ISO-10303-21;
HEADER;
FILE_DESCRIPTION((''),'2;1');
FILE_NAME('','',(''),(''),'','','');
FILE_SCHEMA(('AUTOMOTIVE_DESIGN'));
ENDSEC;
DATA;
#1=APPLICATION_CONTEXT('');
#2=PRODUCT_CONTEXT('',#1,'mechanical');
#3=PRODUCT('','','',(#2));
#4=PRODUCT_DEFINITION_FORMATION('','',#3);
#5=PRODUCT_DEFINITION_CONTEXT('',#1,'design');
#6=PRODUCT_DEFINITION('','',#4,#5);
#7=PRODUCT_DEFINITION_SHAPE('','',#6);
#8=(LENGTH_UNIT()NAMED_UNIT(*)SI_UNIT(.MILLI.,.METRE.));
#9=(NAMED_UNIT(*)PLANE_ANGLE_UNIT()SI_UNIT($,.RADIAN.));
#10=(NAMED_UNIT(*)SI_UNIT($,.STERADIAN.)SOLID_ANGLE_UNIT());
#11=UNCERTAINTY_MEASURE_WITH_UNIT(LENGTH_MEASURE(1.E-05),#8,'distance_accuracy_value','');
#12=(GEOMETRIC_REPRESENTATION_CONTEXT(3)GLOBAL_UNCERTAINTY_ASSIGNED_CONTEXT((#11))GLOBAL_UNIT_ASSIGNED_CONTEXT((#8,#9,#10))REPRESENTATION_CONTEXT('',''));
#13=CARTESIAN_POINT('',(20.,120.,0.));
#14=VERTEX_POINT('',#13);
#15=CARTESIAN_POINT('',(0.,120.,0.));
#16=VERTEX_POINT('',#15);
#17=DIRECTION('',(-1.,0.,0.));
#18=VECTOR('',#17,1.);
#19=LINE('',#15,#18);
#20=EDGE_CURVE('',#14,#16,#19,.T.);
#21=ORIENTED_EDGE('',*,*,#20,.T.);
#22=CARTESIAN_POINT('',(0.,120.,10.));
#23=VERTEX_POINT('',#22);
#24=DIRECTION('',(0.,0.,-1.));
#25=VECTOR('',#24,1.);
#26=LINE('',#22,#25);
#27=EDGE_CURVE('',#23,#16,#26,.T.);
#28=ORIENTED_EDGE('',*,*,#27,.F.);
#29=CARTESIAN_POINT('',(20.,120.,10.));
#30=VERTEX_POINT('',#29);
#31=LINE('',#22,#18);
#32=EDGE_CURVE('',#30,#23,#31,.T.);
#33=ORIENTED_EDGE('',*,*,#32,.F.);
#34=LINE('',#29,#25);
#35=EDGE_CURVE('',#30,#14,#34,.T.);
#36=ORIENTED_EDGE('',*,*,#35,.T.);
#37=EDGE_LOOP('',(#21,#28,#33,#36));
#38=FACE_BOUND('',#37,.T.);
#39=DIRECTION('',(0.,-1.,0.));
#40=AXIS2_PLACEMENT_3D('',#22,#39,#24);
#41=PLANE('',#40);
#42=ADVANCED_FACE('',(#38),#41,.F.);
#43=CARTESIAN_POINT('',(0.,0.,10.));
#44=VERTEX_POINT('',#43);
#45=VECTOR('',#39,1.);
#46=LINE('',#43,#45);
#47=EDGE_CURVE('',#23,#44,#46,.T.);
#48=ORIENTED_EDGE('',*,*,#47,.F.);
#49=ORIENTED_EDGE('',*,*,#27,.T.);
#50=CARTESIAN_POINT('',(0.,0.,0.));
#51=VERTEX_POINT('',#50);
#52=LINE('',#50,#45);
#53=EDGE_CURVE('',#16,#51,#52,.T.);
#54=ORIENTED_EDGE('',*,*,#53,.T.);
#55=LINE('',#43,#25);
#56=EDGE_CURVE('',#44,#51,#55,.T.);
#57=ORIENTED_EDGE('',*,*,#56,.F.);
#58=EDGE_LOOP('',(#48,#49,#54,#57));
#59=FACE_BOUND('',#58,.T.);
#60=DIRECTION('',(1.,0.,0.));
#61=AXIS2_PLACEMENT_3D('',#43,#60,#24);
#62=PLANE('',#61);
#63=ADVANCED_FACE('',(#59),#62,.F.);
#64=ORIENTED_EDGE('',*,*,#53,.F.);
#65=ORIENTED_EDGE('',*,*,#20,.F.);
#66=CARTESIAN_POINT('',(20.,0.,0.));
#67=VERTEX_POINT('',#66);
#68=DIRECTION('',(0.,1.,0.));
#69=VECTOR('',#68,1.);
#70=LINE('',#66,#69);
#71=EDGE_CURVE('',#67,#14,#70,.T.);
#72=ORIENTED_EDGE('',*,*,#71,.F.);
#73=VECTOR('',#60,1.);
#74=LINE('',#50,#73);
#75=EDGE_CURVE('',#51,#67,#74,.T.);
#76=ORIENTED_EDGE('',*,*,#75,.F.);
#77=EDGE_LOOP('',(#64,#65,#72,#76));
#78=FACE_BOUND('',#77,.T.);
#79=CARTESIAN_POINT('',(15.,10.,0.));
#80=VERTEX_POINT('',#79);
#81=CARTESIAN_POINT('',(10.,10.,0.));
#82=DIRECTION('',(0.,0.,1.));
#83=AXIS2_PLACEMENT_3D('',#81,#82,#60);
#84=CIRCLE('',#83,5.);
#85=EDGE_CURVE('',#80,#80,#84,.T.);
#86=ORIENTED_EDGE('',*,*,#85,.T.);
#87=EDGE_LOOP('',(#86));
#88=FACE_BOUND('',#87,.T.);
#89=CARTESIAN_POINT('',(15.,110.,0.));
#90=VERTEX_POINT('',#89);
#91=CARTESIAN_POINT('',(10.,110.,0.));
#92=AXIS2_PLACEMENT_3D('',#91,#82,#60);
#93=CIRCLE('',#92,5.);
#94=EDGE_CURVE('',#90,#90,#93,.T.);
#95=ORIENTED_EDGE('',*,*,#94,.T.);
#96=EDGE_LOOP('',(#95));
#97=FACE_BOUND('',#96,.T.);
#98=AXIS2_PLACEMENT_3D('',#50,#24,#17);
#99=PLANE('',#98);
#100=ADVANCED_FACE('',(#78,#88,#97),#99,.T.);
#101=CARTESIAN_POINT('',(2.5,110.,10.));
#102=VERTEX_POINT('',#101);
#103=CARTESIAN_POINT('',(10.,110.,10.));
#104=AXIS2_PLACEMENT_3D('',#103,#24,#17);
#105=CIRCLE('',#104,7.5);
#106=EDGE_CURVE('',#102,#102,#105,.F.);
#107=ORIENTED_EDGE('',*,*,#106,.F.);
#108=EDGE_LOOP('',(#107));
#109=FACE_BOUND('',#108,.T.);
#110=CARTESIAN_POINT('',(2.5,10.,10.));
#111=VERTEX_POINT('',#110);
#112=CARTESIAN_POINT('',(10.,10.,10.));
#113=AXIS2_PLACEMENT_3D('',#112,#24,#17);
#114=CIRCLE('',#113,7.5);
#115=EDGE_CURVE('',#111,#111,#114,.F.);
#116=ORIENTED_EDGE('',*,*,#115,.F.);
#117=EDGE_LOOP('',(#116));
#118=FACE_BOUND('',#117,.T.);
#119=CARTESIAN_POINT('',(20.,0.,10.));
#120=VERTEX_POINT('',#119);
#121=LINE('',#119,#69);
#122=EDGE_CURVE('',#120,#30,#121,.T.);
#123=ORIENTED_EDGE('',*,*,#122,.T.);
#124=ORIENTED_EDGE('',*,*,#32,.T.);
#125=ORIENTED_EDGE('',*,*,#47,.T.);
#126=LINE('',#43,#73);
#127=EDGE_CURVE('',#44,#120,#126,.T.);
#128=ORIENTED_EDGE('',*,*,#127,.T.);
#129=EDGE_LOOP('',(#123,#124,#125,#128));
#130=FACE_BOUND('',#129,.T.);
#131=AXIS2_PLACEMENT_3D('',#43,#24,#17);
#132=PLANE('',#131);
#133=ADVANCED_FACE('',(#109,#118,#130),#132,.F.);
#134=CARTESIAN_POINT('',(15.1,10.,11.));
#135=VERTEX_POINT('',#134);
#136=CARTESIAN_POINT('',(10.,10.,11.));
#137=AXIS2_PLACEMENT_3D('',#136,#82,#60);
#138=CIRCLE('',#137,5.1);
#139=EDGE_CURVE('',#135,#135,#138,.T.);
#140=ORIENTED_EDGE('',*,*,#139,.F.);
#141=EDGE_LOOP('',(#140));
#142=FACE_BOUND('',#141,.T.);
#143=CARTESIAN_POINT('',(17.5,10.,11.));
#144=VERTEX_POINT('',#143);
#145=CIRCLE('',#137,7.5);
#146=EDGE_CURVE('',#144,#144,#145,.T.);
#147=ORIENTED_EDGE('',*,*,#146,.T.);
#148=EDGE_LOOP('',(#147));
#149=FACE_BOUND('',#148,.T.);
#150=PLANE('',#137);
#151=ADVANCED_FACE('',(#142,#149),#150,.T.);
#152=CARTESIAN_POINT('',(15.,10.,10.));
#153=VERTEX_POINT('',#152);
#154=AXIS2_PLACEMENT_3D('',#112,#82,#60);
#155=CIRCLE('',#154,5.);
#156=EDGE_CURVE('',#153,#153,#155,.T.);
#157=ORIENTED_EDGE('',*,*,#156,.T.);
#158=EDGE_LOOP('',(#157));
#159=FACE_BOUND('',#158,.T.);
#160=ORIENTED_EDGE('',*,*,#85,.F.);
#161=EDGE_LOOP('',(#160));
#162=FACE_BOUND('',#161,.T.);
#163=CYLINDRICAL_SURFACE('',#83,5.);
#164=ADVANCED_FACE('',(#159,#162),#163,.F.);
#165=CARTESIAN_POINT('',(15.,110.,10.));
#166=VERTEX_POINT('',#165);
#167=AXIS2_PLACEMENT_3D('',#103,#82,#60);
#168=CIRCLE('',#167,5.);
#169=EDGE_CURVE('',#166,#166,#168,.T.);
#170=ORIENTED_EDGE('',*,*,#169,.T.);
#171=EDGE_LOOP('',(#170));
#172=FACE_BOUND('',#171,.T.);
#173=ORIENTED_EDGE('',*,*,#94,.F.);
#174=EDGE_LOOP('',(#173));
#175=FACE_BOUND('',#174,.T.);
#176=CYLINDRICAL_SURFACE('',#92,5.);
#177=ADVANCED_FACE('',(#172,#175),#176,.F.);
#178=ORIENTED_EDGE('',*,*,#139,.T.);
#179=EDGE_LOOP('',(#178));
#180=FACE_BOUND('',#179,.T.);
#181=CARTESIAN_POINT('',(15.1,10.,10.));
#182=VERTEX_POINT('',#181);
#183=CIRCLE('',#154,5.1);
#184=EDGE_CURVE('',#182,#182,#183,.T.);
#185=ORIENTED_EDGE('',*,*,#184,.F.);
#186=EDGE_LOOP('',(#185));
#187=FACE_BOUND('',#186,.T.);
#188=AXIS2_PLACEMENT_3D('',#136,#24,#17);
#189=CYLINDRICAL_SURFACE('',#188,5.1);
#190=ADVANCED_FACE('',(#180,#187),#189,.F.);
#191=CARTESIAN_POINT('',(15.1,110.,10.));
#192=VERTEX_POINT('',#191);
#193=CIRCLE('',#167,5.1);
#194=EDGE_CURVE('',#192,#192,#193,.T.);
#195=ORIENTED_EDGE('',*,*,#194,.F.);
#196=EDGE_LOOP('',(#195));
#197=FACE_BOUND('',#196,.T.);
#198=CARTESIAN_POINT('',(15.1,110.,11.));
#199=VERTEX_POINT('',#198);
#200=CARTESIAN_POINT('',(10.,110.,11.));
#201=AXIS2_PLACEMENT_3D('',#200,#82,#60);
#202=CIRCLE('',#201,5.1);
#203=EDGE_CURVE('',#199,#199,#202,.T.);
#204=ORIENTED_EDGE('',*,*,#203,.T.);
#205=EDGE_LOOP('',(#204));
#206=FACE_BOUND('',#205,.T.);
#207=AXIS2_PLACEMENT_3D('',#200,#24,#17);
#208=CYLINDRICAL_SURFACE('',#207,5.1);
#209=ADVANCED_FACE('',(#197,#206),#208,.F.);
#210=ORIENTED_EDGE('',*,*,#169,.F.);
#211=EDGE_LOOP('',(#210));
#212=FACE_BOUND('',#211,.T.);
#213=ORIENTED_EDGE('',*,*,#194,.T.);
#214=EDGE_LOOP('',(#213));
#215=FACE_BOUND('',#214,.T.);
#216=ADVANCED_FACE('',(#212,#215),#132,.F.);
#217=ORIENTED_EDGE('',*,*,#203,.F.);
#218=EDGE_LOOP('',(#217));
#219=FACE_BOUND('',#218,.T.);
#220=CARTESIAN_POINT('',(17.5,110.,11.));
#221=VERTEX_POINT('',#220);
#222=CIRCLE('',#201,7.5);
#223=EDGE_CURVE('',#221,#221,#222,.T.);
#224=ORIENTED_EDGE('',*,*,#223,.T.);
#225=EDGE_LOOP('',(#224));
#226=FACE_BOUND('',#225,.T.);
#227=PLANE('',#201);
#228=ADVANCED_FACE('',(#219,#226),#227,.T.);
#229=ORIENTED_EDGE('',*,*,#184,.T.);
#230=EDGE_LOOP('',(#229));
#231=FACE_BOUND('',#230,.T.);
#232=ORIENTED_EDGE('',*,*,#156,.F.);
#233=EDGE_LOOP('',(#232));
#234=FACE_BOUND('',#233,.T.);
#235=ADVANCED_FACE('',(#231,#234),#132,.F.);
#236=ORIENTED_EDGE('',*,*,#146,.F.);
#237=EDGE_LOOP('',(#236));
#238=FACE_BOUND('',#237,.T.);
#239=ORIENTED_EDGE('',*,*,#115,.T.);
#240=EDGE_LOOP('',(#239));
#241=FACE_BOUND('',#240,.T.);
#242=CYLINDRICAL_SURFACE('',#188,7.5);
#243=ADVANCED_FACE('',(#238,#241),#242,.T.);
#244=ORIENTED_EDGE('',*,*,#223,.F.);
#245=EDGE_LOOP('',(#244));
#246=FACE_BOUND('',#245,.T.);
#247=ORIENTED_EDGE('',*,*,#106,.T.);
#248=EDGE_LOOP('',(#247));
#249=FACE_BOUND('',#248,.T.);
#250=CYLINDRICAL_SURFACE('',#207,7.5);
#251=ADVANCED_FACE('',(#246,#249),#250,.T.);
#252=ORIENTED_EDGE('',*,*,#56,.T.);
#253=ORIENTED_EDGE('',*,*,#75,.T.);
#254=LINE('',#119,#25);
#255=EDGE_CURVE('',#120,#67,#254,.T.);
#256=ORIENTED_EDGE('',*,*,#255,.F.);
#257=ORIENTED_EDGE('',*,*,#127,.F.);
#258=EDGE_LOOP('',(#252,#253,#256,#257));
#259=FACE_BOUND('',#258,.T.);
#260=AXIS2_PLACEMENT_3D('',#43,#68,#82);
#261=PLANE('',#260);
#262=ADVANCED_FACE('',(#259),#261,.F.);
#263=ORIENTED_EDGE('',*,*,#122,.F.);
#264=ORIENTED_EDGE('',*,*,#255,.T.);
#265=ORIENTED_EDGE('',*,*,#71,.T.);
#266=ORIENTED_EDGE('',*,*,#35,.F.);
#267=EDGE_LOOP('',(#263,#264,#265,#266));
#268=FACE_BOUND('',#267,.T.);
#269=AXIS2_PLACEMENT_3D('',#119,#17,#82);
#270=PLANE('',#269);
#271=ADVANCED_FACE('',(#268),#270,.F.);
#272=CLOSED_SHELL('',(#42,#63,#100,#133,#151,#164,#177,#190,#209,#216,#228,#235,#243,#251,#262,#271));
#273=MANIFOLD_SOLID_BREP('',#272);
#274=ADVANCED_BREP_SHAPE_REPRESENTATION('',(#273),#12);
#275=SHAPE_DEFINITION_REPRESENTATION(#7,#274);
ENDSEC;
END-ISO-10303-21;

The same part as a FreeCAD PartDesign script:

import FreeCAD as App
import Part
import Sketcher
from FreeCAD import Vector
Q = App.Units.Quantity

doc = App.newDocument("Part")
params = doc.addObject("Spreadsheet::Sheet", "Params")
for row, (alias, value) in enumerate([
    ("sketch1_width", "20 mm"),
    ("sketch1_height", "120 mm"),
    ("pad1_length", "10 mm"),
    ("sketch2_diameter", "15 mm"),
    ("sketch2_diameter2", "10.2 mm"),
    ("pad2_length", "1 mm"),
    ("sketch3_diameter", "10 mm"),
    ("pocket1_length", "10 mm"),
], start=1):
    params.set(f"A{row}", alias)
    params.set(f"B{row}", "=" + value)
    params.setAlias(f"B{row}", alias)

body = doc.addObject("PartDesign::Body", "Body")

sketch1 = doc.addObject("Sketcher::SketchObject", "Sketch")
body.addObject(sketch1)
sketch1.AttachmentSupport = (doc.XY_Plane, [""])
sketch1.MapMode = "FlatFace"
sketch1.addGeometry([
    Part.LineSegment(Vector(0, 120, 0), Vector(0, 0, 0)),
    Part.LineSegment(Vector(0, 0, 0), Vector(20, 0, 0)),
    Part.LineSegment(Vector(20, 0, 0), Vector(20, 120, 0)),
    Part.LineSegment(Vector(20, 120, 0), Vector(0, 120, 0)),
], False)
sketch1.addConstraint([
    Sketcher.Constraint("Coincident", 0, 2, 1, 1),
    Sketcher.Constraint("Coincident", 1, 2, 2, 1),
    Sketcher.Constraint("Coincident", 2, 2, 3, 1),
    Sketcher.Constraint("Coincident", 3, 2, 0, 1),
    Sketcher.Constraint("Vertical", 0),
    Sketcher.Constraint("Horizontal", 1),
    Sketcher.Constraint("Vertical", 2),
    Sketcher.Constraint("Horizontal", 3),
    Sketcher.Constraint("Coincident", 0, 2, -1, 1),
    Sketcher.Constraint("DistanceX", 1, 1, 1, 2, Q("20 mm")),
    Sketcher.Constraint("DistanceY", 0, 2, 0, 1, Q("120 mm")),
])
sketch1.setExpression("Constraints[9]", "Params.sketch1_width")
sketch1.setExpression("Constraints[10]", "Params.sketch1_height")
pad1 = doc.addObject("PartDesign::Pad", "Pad")
body.addObject(pad1)
pad1.Profile = sketch1
pad1.setExpression("Length", "Params.pad1_length")

sketch2 = doc.addObject("Sketcher::SketchObject", "Sketch001")
body.addObject(sketch2)
sketch2.AttachmentSupport = (doc.XY_Plane, [""])
sketch2.MapMode = "FlatFace"
sketch2.AttachmentOffset = App.Placement(Vector(0, 0, 10), App.Rotation())
sketch2.addGeometry([
    Part.Circle(Vector(10, 110, 0), Vector(0, 0, 1), 7.5),
    Part.Circle(Vector(10, 110, 0), Vector(0, 0, 1), 5.1),
    Part.Circle(Vector(10, 10, 0), Vector(0, 0, 1), 7.5),
    Part.Circle(Vector(10, 10, 0), Vector(0, 0, 1), 5.1),
], False)
sketch2.addConstraint([
    Sketcher.Constraint("Coincident", 1, 3, 0, 3),
    Sketcher.Constraint("Coincident", 3, 3, 2, 3),
    Sketcher.Constraint("Equal", 0, 2),
    Sketcher.Constraint("Equal", 1, 3),
    Sketcher.Constraint("Vertical", 1, 3, 2, 3),
    Sketcher.Constraint("Diameter", 0, Q("15 mm")),
    Sketcher.Constraint("Diameter", 1, Q("10.2 mm")),
    Sketcher.Constraint("DistanceX", -1, 1, 0, 3, Q("10 mm")),
    Sketcher.Constraint("DistanceY", -1, 1, 0, 3, Q("110 mm")),
    Sketcher.Constraint("DistanceY", -1, 1, 2, 3, Q("10 mm")),
])
sketch2.setExpression("Constraints[5]", "Params.sketch2_diameter")
sketch2.setExpression("Constraints[6]", "Params.sketch2_diameter2")
pad2 = doc.addObject("PartDesign::Pad", "Pad001")
body.addObject(pad2)
pad2.Profile = sketch2
pad2.setExpression("Length", "Params.pad2_length")

sketch3 = doc.addObject("Sketcher::SketchObject", "Sketch002")
body.addObject(sketch3)
sketch3.AttachmentSupport = (doc.XY_Plane, [""])
sketch3.MapMode = "FlatFace"
sketch3.AttachmentOffset = App.Placement(Vector(0, 0, 10), App.Rotation())
sketch3.addGeometry([
    Part.Circle(Vector(10, 110, 0), Vector(0, 0, 1), 5),
    Part.Circle(Vector(10, 10, 0), Vector(0, 0, 1), 5),
], False)
sketch3.addConstraint([
    Sketcher.Constraint("Equal", 0, 1),
    Sketcher.Constraint("Vertical", 0, 3, 1, 3),
    Sketcher.Constraint("Diameter", 0, Q("10 mm")),
    Sketcher.Constraint("DistanceX", -1, 1, 0, 3, Q("10 mm")),
    Sketcher.Constraint("DistanceY", -1, 1, 0, 3, Q("110 mm")),
    Sketcher.Constraint("DistanceY", -1, 1, 1, 3, Q("10 mm")),
])
sketch3.setExpression("Constraints[2]", "Params.sketch3_diameter")
pocket1 = doc.addObject("PartDesign::Pocket", "Pocket")
body.addObject(pocket1)
pocket1.Profile = sketch3
pocket1.setExpression("Length", "Params.pocket1_length")

doc.recompute()
